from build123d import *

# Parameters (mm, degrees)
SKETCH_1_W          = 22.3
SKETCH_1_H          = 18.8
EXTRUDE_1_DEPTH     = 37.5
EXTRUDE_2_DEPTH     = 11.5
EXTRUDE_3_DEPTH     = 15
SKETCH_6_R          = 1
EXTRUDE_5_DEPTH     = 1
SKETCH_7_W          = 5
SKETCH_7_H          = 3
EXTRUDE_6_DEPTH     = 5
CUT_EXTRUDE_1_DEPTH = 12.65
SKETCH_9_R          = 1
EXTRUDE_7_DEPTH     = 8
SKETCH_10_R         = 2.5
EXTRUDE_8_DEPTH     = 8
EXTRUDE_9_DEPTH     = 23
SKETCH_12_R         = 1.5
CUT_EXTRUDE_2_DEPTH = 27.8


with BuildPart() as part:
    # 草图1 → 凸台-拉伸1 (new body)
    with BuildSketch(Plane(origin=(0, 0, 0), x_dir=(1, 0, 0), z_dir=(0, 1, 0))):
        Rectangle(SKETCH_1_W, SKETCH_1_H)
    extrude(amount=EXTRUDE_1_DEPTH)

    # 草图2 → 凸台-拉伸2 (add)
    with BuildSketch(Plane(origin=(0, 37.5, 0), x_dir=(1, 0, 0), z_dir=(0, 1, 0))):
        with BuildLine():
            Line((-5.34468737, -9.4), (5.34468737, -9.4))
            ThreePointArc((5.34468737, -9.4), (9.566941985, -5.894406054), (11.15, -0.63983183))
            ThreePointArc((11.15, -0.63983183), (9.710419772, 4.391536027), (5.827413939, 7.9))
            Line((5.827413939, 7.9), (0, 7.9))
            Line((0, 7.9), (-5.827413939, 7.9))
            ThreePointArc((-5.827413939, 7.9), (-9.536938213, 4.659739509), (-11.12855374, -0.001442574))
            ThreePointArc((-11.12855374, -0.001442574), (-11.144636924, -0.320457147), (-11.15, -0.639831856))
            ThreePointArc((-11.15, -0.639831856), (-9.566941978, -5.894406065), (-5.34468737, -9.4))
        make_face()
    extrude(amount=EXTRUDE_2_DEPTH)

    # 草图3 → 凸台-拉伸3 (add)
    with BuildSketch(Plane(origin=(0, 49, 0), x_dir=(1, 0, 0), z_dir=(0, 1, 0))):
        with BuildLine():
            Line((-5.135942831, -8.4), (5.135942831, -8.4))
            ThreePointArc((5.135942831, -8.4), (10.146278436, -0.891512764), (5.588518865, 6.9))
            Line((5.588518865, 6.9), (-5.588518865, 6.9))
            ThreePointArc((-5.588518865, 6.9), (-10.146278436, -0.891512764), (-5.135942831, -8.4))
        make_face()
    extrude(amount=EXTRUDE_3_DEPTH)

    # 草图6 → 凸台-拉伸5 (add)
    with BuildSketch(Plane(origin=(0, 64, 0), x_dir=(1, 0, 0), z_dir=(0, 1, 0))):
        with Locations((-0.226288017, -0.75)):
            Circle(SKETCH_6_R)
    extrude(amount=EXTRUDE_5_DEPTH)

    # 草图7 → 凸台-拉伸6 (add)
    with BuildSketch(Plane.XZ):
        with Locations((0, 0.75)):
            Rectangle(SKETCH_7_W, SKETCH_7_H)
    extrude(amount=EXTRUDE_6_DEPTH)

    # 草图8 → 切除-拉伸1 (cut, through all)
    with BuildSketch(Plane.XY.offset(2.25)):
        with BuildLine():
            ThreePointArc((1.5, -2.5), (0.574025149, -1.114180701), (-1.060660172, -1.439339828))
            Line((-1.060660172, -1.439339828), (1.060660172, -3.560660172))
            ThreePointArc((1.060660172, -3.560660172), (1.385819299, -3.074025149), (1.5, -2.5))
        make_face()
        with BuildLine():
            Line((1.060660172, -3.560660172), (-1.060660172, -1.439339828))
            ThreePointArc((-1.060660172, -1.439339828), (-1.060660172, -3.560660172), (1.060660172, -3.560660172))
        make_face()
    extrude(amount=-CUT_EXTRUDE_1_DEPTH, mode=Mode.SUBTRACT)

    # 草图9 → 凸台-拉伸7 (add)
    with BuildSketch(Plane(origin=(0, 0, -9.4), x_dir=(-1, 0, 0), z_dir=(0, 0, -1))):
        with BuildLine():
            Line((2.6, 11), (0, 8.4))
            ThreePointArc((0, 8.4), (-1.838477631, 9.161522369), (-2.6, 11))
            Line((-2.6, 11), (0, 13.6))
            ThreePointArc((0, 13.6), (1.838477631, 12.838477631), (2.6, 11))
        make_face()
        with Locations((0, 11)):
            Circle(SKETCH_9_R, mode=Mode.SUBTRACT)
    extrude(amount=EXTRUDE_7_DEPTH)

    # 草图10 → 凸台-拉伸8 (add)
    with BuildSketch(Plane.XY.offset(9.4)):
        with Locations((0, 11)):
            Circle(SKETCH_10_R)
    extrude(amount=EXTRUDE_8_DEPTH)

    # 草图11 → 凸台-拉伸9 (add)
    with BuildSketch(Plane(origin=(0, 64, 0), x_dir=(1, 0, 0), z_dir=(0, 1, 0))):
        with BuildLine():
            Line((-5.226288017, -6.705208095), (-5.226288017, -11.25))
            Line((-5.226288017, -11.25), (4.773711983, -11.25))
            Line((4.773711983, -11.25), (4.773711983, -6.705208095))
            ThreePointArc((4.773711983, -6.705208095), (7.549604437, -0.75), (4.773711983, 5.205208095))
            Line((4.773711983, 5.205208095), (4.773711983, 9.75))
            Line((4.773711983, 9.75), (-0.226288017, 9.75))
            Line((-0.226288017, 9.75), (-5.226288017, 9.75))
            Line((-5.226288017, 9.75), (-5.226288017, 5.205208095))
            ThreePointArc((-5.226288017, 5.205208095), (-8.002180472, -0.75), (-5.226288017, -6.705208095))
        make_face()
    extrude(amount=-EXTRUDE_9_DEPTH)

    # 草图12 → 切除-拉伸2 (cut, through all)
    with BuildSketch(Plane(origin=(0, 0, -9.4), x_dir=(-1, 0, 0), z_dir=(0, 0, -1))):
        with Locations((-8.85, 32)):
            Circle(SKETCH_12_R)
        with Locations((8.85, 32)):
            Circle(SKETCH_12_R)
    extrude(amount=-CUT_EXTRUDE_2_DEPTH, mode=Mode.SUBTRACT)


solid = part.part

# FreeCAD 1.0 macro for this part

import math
import FreeCAD as App
import Part
import Sketcher

V = App.Vector
Q = App.Units.Quantity

doc = App.newDocument("Part")
params = doc.addObject("Spreadsheet::Sheet", "Params")
for row, (alias, value) in enumerate([
    ("sketch1_width", "22.3 mm"),
    ("sketch1_height", "18.8 mm"),
    ("pad1_length", "37.5 mm"),
    ("pad2_length", "11.5 mm"),
    ("pad3_length", "15 mm"),
    ("sketch4_diameter", "2 mm"),
    ("pad4_length", "1 mm"),
    ("sketch5_width", "5 mm"),
    ("sketch5_height", "3 mm"),
    ("pad5_length", "5 mm"),
    ("sketch6_radius", "1.5 mm"),
    ("sketch7_diameter", "2 mm"),
    ("sketch7_radius", "2.6 mm"),
    ("pad6_length", "8 mm"),
    ("sketch8_diameter", "5 mm"),
    ("pad7_length", "8 mm"),
    ("sketch9_width", "10 mm"),
    ("pad8_length", "23 mm"),
    ("sketch10_diameter", "3 mm"),
], start=1):
    params.set(f"A{row}", alias)
    params.set(f"B{row}", "=" + value)
    params.setAlias(f"B{row}", alias)

body = doc.addObject("PartDesign::Body", "Body")

sketch1 = body.newObject("Sketcher::SketchObject", "Sketch")
sketch1.AttachmentSupport = (doc.getObject("XZ_Plane"), [""])
sketch1.MapMode = "FlatFace"
sketch1.addGeometry(Part.LineSegment(V(-11, -9, 0), V(-11, 9, 0)), False)
sketch1.addGeometry(Part.LineSegment(V(-11, 9, 0), V(11, 9, 0)), False)
sketch1.addGeometry(Part.LineSegment(V(11, 9, 0), V(11, -9, 0)), False)
sketch1.addGeometry(Part.LineSegment(V(11, -9, 0), V(-11, -9, 0)), False)
sketch1.addConstraint(Sketcher.Constraint("Coincident", 0, 2, 1, 1))
sketch1.addConstraint(Sketcher.Constraint("Coincident", 1, 2, 2, 1))
sketch1.addConstraint(Sketcher.Constraint("Coincident", 2, 2, 3, 1))
sketch1.addConstraint(Sketcher.Constraint("Coincident", 3, 2, 0, 1))
sketch1.addConstraint(Sketcher.Constraint("Vertical", 0))
sketch1.addConstraint(Sketcher.Constraint("Horizontal", 1))
sketch1.addConstraint(Sketcher.Constraint("Vertical", 2))
sketch1.addConstraint(Sketcher.Constraint("Horizontal", 3))
sketch1.addConstraint(Sketcher.Constraint("Symmetric", 0, 2, 2, 2, -1, 1))
sketch1.addConstraint(Sketcher.Constraint("DistanceX", 1, 1, 1, 2, Q("22.3 mm")))
sketch1.addConstraint(Sketcher.Constraint("DistanceY", 0, 1, 0, 2, Q("18.8 mm")))
sketch1.setExpression("Constraints[9]", "Params.sketch1_width")
sketch1.setExpression("Constraints[10]", "Params.sketch1_height")
pad1 = body.newObject("PartDesign::Pad", "Pad")
pad1.Profile = sketch1
pad1.setExpression("Length", "Params.pad1_length")
pad1.Reversed = True

sketch2 = body.newObject("Sketcher::SketchObject", "Sketch001")
sketch2.AttachmentSupport = (doc.getObject("XZ_Plane"), [""])
sketch2.MapMode = "FlatFace"
sketch2.AttachmentOffset = App.Placement(V(0, 0, -37.5), App.Rotation())
sketch2.addGeometry(Part.LineSegment(V(-5.344687, 9.4, 0), V(5.344687, 9.4, 0)), False)
sketch2.addGeometry(Part.ArcOfCircle(Part.Circle(V(1.637833, 0.639832, 0), V(0, 0, 1), 9.512167), math.radians(0), math.radians(67.064411)), False)
sketch2.addGeometry(Part.ArcOfCircle(Part.Circle(V(1.637833, 0.639832, 0), V(0, 0, 1), 9.512167), math.radians(-63.867761), math.radians(0)), False)
sketch2.addGeometry(Part.LineSegment(V(5.827414, -7.9, 0), V(-5.827414, -7.9, 0)), False)
sketch2.addGeometry(Part.ArcOfCircle(Part.Circle(V(-1.637833, 0.639832, 0), V(0, 0, 1), 9.512167), math.radians(-176.151821), math.radians(-116.132239)), False)
sketch2.addGeometry(Part.ArcOfCircle(Part.Circle(V(-1.637835, 0.639832, 0), V(0, 0, 1), 9.512165), math.radians(180), math.radians(183.84818)), False)
sketch2.addGeometry(Part.ArcOfCircle(Part.Circle(V(-1.637833, 0.639832, 0), V(0, 0, 1), 9.512167), math.radians(112.935589), math.radians(180)), False)
sketch2.addConstraint(Sketcher.Constraint("Coincident", 0, 2, 1, 2))
sketch2.addConstraint(Sketcher.Constraint("Tangent", 1, 1, 2, 2))
sketch2.addConstraint(Sketcher.Constraint("Coincident", 2, 1, 3, 1))
sketch2.addConstraint(Sketcher.Constraint("Coincident", 3, 2, 4, 2))
sketch2.addConstraint(Sketcher.Constraint("Tangent", 4, 1, 5, 2))
sketch2.addConstraint(Sketcher.Constraint("Tangent", 5, 1, 6, 2))
sketch2.addConstraint(Sketcher.Constraint("Coincident", 6, 1, 0, 1))
sketch2.addConstraint(Sketcher.Constraint("Horizontal", 0))
sketch2.addConstraint(Sketcher.Constraint("Horizontal", 3))
sketch2.addConstraint(Sketcher.Constraint("Coincident", 6, 3, 4, 3))
sketch2.addConstraint(Sketcher.Constraint("Equal", 1, 2))
sketch2.addConstraint(Sketcher.Constraint("Equal", 2, 4))
sketch2.addConstraint(Sketcher.Constraint("Symmetric", 1, 3, 4, 3, -2))
sketch2.addConstraint(Sketcher.Constraint("Horizontal", 6, 3, 1, 1))
sketch2.addConstraint(Sketcher.Constraint("Horizontal", 1, 1, 5, 1))
sketch2.addConstraint(Sketcher.Constraint("DistanceY", -1, 1, 0, 2, Q("9.4 mm")))
sketch2.addConstraint(Sketcher.Constraint("DistanceY", 2, 1, -1, 1, Q("7.9 mm")))
sketch2.addConstraint(Sketcher.Constraint("DistanceX", -1, 1, 1, 1, Q("11.15 mm")))
sketch2.addConstraint(Sketcher.Constraint("Radius", 1, Q("9.512167 mm")))
sketch2.addConstraint(Sketcher.Constraint("DistanceX", 0, 1, 0, 2, Q("10.689375 mm")))
sketch2.addConstraint(Sketcher.Constraint("DistanceX", 4, 1, 5, 3, Q("9.490719 mm")))
pad2 = body.newObject("PartDesign::Pad", "Pad001")
pad2.Profile = sketch2
pad2.setExpression("Length", "Params.pad2_length")
pad2.Reversed = True

sketch3 = body.newObject("Sketcher::SketchObject", "Sketch002")
sketch3.AttachmentSupport = (doc.getObject("XZ_Plane"), [""])
sketch3.MapMode = "FlatFace"
sketch3.AttachmentOffset = App.Placement(V(0, 0, -49), App.Rotation())
sketch3.addGeometry(Part.LineSegment(V(-5, 8, 0), V(5, 8, 0)), False)
sketch3.addGeometry(Part.ArcOfCircle(Part.Circle(V(2, 1, 0), V(0, 0, 1), 9), math.radians(-62), math.radians(66)), False)
sketch3.addGeometry(Part.LineSegment(V(6, -7, 0), V(-6, -7, 0)), False)
sketch3.addGeometry(Part.ArcOfCircle(Part.Circle(V(-2, 1, 0), V(0, 0, 1), 9), math.radians(114), math.radians(242)), False)
sketch3.addConstraint(Sketcher.Constraint("Coincident", 0, 2, 1, 2))
sketch3.addConstraint(Sketcher.Constraint("Coincident", 1, 1, 2, 1))
sketch3.addConstraint(Sketcher.Constraint("Coincident", 2, 2, 3, 2))
sketch3.addConstraint(Sketcher.Constraint("Coincident", 3, 1, 0, 1))
sketch3.addConstraint(Sketcher.Constraint("Horizontal", 0))
sketch3.addConstraint(Sketcher.Constraint("Horizontal", 2))
sketch3.addConstraint(Sketcher.Constraint("Equal", 1, 3))
sketch3.addConstraint(Sketcher.Constraint("Symmetric", 1, 3, 3, 3, -2))
sketch3.addConstraint(Sketcher.Constraint("DistanceY", -1, 1, 0, 2, Q("8.4 mm")))
sketch3.addConstraint(Sketcher.Constraint("DistanceY", 1, 1, -1, 1, Q("6.9 mm")))
sketch3.addConstraint(Sketcher.Constraint("Radius", 1, Q("8.512167 mm")))
sketch3.addConstraint(Sketcher.Constraint("DistanceX", 0, 1, 0, 2, Q("10.271886 mm")))
sketch3.addConstraint(Sketcher.Constraint("DistanceX", 2, 2, 2, 1, Q("11.177038 mm")))
pad3 = body.newObject("PartDesign::Pad", "Pad002")
pad3.Profile = sketch3
pad3.setExpression("Length", "Params.pad3_length")
pad3.Reversed = True

sketch4 = body.newObject("Sketcher::SketchObject", "Sketch003")
sketch4.AttachmentSupport = (doc.getObject("XZ_Plane"), [""])
sketch4.MapMode = "FlatFace"
sketch4.AttachmentOffset = App.Placement(V(0, 0, -64), App.Rotation())
sketch4.addGeometry(Part.Circle(V(-0.2, 0.8, 0), V(0, 0, 1), 1), False)
sketch4.addConstraint(Sketcher.Constraint("Diameter", 0, Q("2 mm")))
sketch4.addConstraint(Sketcher.Constraint("DistanceY", -1, 1, 0, 3, Q("0.75 mm")))
sketch4.addConstraint(Sketcher.Constraint("DistanceX", 0, 3, -1, 1, Q("0.226288 mm")))
sketch4.setExpression("Constraints[0]", "Params.sketch4_diameter")
pad4 = body.newObject("PartDesign::Pad", "Pad003")
pad4.Profile = sketch4
pad4.setExpression("Length", "Params.pad4_length")
pad4.Reversed = True

sketch5 = body.newObject("Sketcher::SketchObject", "Sketch004")
sketch5.AttachmentSupport = (doc.getObject("XZ_Plane"), [""])
sketch5.MapMode = "FlatFace"
sketch5.addGeometry(Part.LineSegment(V(-2.5, 2.2, 0), V(-2.5, -0.8, 0)), False)
sketch5.addGeometry(Part.LineSegment(V(-2.5, -0.8, 0), V(2.5, -0.8, 0)), False)
sketch5.addGeometry(Part.LineSegment(V(2.5, -0.8, 0), V(2.5, 2.2, 0)), False)
sketch5.addGeometry(Part.LineSegment(V(2.5, 2.2, 0), V(-2.5, 2.2, 0)), False)
sketch5.addConstraint(Sketcher.Constraint("Coincident", 0, 2, 1, 1))
sketch5.addConstraint(Sketcher.Constraint("Coincident", 1, 2, 2, 1))
sketch5.addConstraint(Sketcher.Constraint("Coincident", 2, 2, 3, 1))
sketch5.addConstraint(Sketcher.Constraint("Coincident", 3, 2, 0, 1))
sketch5.addConstraint(Sketcher.Constraint("Vertical", 0))
sketch5.addConstraint(Sketcher.Constraint("Horizontal", 1))
sketch5.addConstraint(Sketcher.Constraint("Vertical", 2))
sketch5.addConstraint(Sketcher.Constraint("Horizontal", 3))
sketch5.addConstraint(Sketcher.Constraint("DistanceX", 1, 1, 1, 2, Q("5 mm")))
sketch5.addConstraint(Sketcher.Constraint("DistanceY", 0, 2, 0, 1, Q("3 mm")))
sketch5.addConstraint(Sketcher.Constraint("DistanceX", 0, 2, -1, 1, Q("2.5 mm")))
sketch5.addConstraint(Sketcher.Constraint("DistanceY", 0, 2, -1, 1, Q("0.75 mm")))
sketch5.setExpression("Constraints[8]", "Params.sketch5_width")
sketch5.setExpression("Constraints[9]", "Params.sketch5_height")
pad5 = body.newObject("PartDesign::Pad", "Pad004")
pad5.Profile = sketch5
pad5.setExpression("Length", "Params.pad5_length")

sketch6 = body.newObject("Sketcher::SketchObject", "Sketch005")
sketch6.AttachmentSupport = (doc.getObject("XY_Plane"), [""])
sketch6.MapMode = "FlatFace"
sketch6.AttachmentOffset = App.Placement(V(0, 0, 2.25), App.Rotation())
sketch6.addGeometry(Part.ArcOfCircle(Part.Circle(V(0, -2.5, 0), V(0, 0, 1), 1.5), math.radians(0), math.radians(135)), False)
sketch6.addGeometry(Part.ArcOfCircle(Part.Circle(V(0, -2.5, 0), V(0, 0, 1), 1.5), math.radians(135), math.radians(315)), False)
sketch6.addGeometry(Part.ArcOfCircle(Part.Circle(V(0, -2.5, 0), V(0, 0, 1), 1.5), math.radians(-45), math.radians(0)), False)
sketch6.addConstraint(Sketcher.Constraint("Tangent", 0, 2, 1, 1))
sketch6.addConstraint(Sketcher.Constraint("Tangent", 1, 2, 2, 1))
sketch6.addConstraint(Sketcher.Constraint("Tangent", 2, 2, 0, 1))
sketch6.addConstraint(Sketcher.Constraint("PointOnObject", 0, 3, -2))
sketch6.addConstraint(Sketcher.Constraint("Horizontal", 1, 3, 2, 2))
sketch6.addConstraint(Sketcher.Constraint("Radius", 0, Q("1.5 mm")))
sketch6.addConstraint(Sketcher.Constraint("DistanceY", 0, 3, -1, 1, Q("2.5 mm")))
sketch6.addConstraint(Sketcher.Constraint("DistanceX", 0, 2, -1, 1, Q("1.06066 mm")))
sketch6.addConstraint(Sketcher.Constraint("DistanceX", -1, 1, 1, 2, Q("1.06066 mm")))
sketch6.setExpression("Constraints[5]", "Params.sketch6_radius")
pocket1 = body.newObject("PartDesign::Pocket", "Pocket")
pocket1.Profile = sketch6
pocket1.Type = "ThroughAll"

sketch7 = body.newObject("Sketcher::SketchObject", "Sketch006")
sketch7.AttachmentSupport = (doc.getObject("XY_Plane"), [""])
sketch7.MapMode = "FlatFace"
sketch7.AttachmentOffset = App.Placement(V(0, 0, -9.4), App.Rotation())
sketch7.addGeometry(Part.LineSegment(V(0, 8.4, 0), V(-2.6, 11, 0)), False)
sketch7.addGeometry(Part.ArcOfCircle(Part.Circle(V(0, 11, 0), V(0, 0, 1), 2.6), math.radians(90), math.radians(180)), False)
sketch7.addGeometry(Part.LineSegment(V(0, 13.6, 0), V(2.6, 11, 0)), False)
sketch7.addGeometry(Part.ArcOfCircle(Part.Circle(V(0, 11, 0), V(0, 0, 1), 2.6), math.radians(-90), math.radians(0)), False)
sketch7.addGeometry(Part.Circle(V(0, 11, 0), V(0, 0, 1), 1), False)
sketch7.addConstraint(Sketcher.Constraint("Coincident", 0, 2, 1, 2))
sketch7.addConstraint(Sketcher.Constraint("Coincident", 1, 1, 2, 1))
sketch7.addConstraint(Sketcher.Constraint("Coincident", 2, 2, 3, 2))
sketch7.addConstraint(Sketcher.Constraint("Coincident", 3, 1, 0, 1))
sketch7.addConstraint(Sketcher.Constraint("Coincident", 3, 3, 1, 3))
sketch7.addConstraint(Sketcher.Constraint("Coincident", 4, 3, 1, 3))
sketch7.addConstraint(Sketcher.Constraint("Equal", 1, 3))
sketch7.addConstraint(Sketcher.Constraint("Symmetric", 0, 2, 2, 2, -2))
sketch7.addConstraint(Sketcher.Constraint("PointOnObject", 1, 1, -2))
sketch7.addConstraint(Sketcher.Constraint("PointOnObject", 3, 1, -2))
sketch7.addConstraint(Sketcher.Constraint("Parallel", 0, 2))
sketch7.addConstraint(Sketcher.Constraint("Diameter", 4, Q("2 mm")))
sketch7.addConstraint(Sketcher.Constraint("Radius", 1, Q("2.6 mm")))
sketch7.addConstraint(Sketcher.Constraint("DistanceY", -1, 1, 1, 3, Q("11 mm")))
sketch7.setExpression("Constraints[11]", "Params.sketch7_diameter")
sketch7.setExpression("Constraints[12]", "Params.sketch7_radius")
pad6 = body.newObject("PartDesign::Pad", "Pad005")
pad6.Profile = sketch7
pad6.setExpression("Length", "Params.pad6_length")
pad6.Reversed = True

sketch8 = body.newObject("Sketcher::SketchObject", "Sketch007")
sketch8.AttachmentSupport = (doc.getObject("XY_Plane"), [""])
sketch8.MapMode = "FlatFace"
sketch8.AttachmentOffset = App.Placement(V(0, 0, 9.4), App.Rotation())
sketch8.addGeometry(Part.Circle(V(0, 11, 0), V(0, 0, 1), 2.5), False)
sketch8.addConstraint(Sketcher.Constraint("PointOnObject", 0, 3, -2))
sketch8.addConstraint(Sketcher.Constraint("Diameter", 0, Q("5 mm")))
sketch8.addConstraint(Sketcher.Constraint("DistanceY", -1, 1, 0, 3, Q("11 mm")))
sketch8.setExpression("Constraints[1]", "Params.sketch8_diameter")
pad7 = body.newObject("PartDesign::Pad", "Pad006")
pad7.Profile = sketch8
pad7.setExpression("Length", "Params.pad7_length")

sketch9 = body.newObject("Sketcher::SketchObject", "Sketch008")
sketch9.AttachmentSupport = (doc.getObject("XZ_Plane"), [""])
sketch9.MapMode = "FlatFace"
sketch9.AttachmentOffset = App.Placement(V(0, 0, -64), App.Rotation())
sketch9.addGeometry(Part.LineSegment(V(-5.2, 6.7, 0), V(-5.2, 11.2, 0)), False)
sketch9.addGeometry(Part.LineSegment(V(-5.2, 11.2, 0), V(4.8, 11.2, 0)), False)
sketch9.addGeometry(Part.LineSegment(V(4.8, 11.2, 0), V(4.8, 6.7, 0)), False)
sketch9.addGeometry(Part.ArcOfCircle(Part.Circle(V(-0.2, 0.8, 0), V(0, 0, 1), 7.8), math.radians(-50), math.radians(50)), False)
sketch9.addGeometry(Part.LineSegment(V(4.8, -5.2, 0), V(4.8, -9.8, 0)), False)
sketch9.addGeometry(Part.LineSegment(V(4.8, -9.8, 0), V(-5.2, -9.8, 0)), False)
sketch9.addGeometry(Part.LineSegment(V(-5.2, -9.8, 0), V(-5.2, -5.2, 0)), False)
sketch9.addGeometry(Part.ArcOfCircle(Part.Circle(V(-0.2, 0.8, 0), V(0, 0, 1), 7.8), math.radians(130), math.radians(230)), False)
sketch9.addConstraint(Sketcher.Constraint("Coincident", 0, 2, 1, 1))
sketch9.addConstraint(Sketcher.Constraint("Coincident", 1, 2, 2, 1))
sketch9.addConstraint(Sketcher.Constraint("Coincident", 2, 2, 3, 2))
sketch9.addConstraint(Sketcher.Constraint("Coincident", 3, 1, 4, 1))
sketch9.addConstraint(Sketcher.Constraint("Coincident", 4, 2, 5, 1))
sketch9.addConstraint(Sketcher.Constraint("Coincident", 5, 2, 6, 1))
sketch9.addConstraint(Sketcher.Constraint("Coincident", 6, 2, 7, 2))
sketch9.addConstraint(Sketcher.Constraint("Coincident", 7, 1, 0, 1))
sketch9.addConstraint(Sketcher.Constraint("Vertical", 0))
sketch9.addConstraint(Sketcher.Constraint("Horizontal", 1))
sketch9.addConstraint(Sketcher.Constraint("Vertical", 2))
sketch9.addConstraint(Sketcher.Constraint("Vertical", 4))
sketch9.addConstraint(Sketcher.Constraint("Horizontal", 5))
sketch9.addConstraint(Sketcher.Constraint("Vertical", 6))
sketch9.addConstraint(Sketcher.Constraint("Coincident", 7, 3, 3, 3))
sketch9.addConstraint(Sketcher.Constraint("Equal", 3, 7))
sketch9.addConstraint(Sketcher.Constraint("Horizontal", 3, 1, 6, 2))
sketch9.addConstraint(Sketcher.Constraint("Horizontal", 2, 2, 7, 1))
sketch9.addConstraint(Sketcher.Constraint("Vertical", 2, 2, 3, 1))
sketch9.addConstraint(Sketcher.Constraint("Equal", 2, 4))
sketch9.addConstraint(Sketcher.Constraint("DistanceX", 1, 1, 1, 2, Q("10 mm")))
sketch9.addConstraint(Sketcher.Constraint("DistanceY", 4, 2, 1, 2, Q("21 mm")))
sketch9.addConstraint(Sketcher.Constraint("DistanceY", -1, 1, 3, 3, Q("0.75 mm")))
sketch9.addConstraint(Sketcher.Constraint("Radius", 3, Q("7.775892 mm")))
sketch9.addConstraint(Sketcher.Constraint("DistanceX", 3, 3, -1, 1, Q("0.226288 mm")))
sketch9.setExpression("Constraints[20]", "Params.sketch9_width")
pad8 = body.newObject("PartDesign::Pad", "Pad007")
pad8.Profile = sketch9
pad8.setExpression("Length", "Params.pad8_length")

sketch10 = body.newObject("Sketcher::SketchObject", "Sketch009")
sketch10.AttachmentSupport = (doc.getObject("XY_Plane"), [""])
sketch10.MapMode = "FlatFace"
sketch10.AttachmentOffset = App.Placement(V(0, 0, -9.4), App.Rotation())
sketch10.addGeometry(Part.Circle(V(8.8, 32, 0), V(0, 0, 1), 1.5), False)
sketch10.addGeometry(Part.Circle(V(-8.8, 32, 0), V(0, 0, 1), 1.5), False)
sketch10.addConstraint(Sketcher.Constraint("Equal", 0, 1))
sketch10.addConstraint(Sketcher.Constraint("Symmetric", 0, 3, 1, 3, -2))
sketch10.addConstraint(Sketcher.Constraint("Diameter", 0, Q("3 mm")))
sketch10.addConstraint(Sketcher.Constraint("DistanceY", -1, 1, 0, 3, Q("32 mm")))
sketch10.addConstraint(Sketcher.Constraint("DistanceX", 1, 3, 0, 3, Q("17.7 mm")))
sketch10.setExpression("Constraints[2]", "Params.sketch10_diameter")
pocket2 = body.newObject("PartDesign::Pocket", "Pocket001")
pocket2.Profile = sketch10
pocket2.Type = "ThroughAll"
pocket2.Reversed = True

doc.recompute()
